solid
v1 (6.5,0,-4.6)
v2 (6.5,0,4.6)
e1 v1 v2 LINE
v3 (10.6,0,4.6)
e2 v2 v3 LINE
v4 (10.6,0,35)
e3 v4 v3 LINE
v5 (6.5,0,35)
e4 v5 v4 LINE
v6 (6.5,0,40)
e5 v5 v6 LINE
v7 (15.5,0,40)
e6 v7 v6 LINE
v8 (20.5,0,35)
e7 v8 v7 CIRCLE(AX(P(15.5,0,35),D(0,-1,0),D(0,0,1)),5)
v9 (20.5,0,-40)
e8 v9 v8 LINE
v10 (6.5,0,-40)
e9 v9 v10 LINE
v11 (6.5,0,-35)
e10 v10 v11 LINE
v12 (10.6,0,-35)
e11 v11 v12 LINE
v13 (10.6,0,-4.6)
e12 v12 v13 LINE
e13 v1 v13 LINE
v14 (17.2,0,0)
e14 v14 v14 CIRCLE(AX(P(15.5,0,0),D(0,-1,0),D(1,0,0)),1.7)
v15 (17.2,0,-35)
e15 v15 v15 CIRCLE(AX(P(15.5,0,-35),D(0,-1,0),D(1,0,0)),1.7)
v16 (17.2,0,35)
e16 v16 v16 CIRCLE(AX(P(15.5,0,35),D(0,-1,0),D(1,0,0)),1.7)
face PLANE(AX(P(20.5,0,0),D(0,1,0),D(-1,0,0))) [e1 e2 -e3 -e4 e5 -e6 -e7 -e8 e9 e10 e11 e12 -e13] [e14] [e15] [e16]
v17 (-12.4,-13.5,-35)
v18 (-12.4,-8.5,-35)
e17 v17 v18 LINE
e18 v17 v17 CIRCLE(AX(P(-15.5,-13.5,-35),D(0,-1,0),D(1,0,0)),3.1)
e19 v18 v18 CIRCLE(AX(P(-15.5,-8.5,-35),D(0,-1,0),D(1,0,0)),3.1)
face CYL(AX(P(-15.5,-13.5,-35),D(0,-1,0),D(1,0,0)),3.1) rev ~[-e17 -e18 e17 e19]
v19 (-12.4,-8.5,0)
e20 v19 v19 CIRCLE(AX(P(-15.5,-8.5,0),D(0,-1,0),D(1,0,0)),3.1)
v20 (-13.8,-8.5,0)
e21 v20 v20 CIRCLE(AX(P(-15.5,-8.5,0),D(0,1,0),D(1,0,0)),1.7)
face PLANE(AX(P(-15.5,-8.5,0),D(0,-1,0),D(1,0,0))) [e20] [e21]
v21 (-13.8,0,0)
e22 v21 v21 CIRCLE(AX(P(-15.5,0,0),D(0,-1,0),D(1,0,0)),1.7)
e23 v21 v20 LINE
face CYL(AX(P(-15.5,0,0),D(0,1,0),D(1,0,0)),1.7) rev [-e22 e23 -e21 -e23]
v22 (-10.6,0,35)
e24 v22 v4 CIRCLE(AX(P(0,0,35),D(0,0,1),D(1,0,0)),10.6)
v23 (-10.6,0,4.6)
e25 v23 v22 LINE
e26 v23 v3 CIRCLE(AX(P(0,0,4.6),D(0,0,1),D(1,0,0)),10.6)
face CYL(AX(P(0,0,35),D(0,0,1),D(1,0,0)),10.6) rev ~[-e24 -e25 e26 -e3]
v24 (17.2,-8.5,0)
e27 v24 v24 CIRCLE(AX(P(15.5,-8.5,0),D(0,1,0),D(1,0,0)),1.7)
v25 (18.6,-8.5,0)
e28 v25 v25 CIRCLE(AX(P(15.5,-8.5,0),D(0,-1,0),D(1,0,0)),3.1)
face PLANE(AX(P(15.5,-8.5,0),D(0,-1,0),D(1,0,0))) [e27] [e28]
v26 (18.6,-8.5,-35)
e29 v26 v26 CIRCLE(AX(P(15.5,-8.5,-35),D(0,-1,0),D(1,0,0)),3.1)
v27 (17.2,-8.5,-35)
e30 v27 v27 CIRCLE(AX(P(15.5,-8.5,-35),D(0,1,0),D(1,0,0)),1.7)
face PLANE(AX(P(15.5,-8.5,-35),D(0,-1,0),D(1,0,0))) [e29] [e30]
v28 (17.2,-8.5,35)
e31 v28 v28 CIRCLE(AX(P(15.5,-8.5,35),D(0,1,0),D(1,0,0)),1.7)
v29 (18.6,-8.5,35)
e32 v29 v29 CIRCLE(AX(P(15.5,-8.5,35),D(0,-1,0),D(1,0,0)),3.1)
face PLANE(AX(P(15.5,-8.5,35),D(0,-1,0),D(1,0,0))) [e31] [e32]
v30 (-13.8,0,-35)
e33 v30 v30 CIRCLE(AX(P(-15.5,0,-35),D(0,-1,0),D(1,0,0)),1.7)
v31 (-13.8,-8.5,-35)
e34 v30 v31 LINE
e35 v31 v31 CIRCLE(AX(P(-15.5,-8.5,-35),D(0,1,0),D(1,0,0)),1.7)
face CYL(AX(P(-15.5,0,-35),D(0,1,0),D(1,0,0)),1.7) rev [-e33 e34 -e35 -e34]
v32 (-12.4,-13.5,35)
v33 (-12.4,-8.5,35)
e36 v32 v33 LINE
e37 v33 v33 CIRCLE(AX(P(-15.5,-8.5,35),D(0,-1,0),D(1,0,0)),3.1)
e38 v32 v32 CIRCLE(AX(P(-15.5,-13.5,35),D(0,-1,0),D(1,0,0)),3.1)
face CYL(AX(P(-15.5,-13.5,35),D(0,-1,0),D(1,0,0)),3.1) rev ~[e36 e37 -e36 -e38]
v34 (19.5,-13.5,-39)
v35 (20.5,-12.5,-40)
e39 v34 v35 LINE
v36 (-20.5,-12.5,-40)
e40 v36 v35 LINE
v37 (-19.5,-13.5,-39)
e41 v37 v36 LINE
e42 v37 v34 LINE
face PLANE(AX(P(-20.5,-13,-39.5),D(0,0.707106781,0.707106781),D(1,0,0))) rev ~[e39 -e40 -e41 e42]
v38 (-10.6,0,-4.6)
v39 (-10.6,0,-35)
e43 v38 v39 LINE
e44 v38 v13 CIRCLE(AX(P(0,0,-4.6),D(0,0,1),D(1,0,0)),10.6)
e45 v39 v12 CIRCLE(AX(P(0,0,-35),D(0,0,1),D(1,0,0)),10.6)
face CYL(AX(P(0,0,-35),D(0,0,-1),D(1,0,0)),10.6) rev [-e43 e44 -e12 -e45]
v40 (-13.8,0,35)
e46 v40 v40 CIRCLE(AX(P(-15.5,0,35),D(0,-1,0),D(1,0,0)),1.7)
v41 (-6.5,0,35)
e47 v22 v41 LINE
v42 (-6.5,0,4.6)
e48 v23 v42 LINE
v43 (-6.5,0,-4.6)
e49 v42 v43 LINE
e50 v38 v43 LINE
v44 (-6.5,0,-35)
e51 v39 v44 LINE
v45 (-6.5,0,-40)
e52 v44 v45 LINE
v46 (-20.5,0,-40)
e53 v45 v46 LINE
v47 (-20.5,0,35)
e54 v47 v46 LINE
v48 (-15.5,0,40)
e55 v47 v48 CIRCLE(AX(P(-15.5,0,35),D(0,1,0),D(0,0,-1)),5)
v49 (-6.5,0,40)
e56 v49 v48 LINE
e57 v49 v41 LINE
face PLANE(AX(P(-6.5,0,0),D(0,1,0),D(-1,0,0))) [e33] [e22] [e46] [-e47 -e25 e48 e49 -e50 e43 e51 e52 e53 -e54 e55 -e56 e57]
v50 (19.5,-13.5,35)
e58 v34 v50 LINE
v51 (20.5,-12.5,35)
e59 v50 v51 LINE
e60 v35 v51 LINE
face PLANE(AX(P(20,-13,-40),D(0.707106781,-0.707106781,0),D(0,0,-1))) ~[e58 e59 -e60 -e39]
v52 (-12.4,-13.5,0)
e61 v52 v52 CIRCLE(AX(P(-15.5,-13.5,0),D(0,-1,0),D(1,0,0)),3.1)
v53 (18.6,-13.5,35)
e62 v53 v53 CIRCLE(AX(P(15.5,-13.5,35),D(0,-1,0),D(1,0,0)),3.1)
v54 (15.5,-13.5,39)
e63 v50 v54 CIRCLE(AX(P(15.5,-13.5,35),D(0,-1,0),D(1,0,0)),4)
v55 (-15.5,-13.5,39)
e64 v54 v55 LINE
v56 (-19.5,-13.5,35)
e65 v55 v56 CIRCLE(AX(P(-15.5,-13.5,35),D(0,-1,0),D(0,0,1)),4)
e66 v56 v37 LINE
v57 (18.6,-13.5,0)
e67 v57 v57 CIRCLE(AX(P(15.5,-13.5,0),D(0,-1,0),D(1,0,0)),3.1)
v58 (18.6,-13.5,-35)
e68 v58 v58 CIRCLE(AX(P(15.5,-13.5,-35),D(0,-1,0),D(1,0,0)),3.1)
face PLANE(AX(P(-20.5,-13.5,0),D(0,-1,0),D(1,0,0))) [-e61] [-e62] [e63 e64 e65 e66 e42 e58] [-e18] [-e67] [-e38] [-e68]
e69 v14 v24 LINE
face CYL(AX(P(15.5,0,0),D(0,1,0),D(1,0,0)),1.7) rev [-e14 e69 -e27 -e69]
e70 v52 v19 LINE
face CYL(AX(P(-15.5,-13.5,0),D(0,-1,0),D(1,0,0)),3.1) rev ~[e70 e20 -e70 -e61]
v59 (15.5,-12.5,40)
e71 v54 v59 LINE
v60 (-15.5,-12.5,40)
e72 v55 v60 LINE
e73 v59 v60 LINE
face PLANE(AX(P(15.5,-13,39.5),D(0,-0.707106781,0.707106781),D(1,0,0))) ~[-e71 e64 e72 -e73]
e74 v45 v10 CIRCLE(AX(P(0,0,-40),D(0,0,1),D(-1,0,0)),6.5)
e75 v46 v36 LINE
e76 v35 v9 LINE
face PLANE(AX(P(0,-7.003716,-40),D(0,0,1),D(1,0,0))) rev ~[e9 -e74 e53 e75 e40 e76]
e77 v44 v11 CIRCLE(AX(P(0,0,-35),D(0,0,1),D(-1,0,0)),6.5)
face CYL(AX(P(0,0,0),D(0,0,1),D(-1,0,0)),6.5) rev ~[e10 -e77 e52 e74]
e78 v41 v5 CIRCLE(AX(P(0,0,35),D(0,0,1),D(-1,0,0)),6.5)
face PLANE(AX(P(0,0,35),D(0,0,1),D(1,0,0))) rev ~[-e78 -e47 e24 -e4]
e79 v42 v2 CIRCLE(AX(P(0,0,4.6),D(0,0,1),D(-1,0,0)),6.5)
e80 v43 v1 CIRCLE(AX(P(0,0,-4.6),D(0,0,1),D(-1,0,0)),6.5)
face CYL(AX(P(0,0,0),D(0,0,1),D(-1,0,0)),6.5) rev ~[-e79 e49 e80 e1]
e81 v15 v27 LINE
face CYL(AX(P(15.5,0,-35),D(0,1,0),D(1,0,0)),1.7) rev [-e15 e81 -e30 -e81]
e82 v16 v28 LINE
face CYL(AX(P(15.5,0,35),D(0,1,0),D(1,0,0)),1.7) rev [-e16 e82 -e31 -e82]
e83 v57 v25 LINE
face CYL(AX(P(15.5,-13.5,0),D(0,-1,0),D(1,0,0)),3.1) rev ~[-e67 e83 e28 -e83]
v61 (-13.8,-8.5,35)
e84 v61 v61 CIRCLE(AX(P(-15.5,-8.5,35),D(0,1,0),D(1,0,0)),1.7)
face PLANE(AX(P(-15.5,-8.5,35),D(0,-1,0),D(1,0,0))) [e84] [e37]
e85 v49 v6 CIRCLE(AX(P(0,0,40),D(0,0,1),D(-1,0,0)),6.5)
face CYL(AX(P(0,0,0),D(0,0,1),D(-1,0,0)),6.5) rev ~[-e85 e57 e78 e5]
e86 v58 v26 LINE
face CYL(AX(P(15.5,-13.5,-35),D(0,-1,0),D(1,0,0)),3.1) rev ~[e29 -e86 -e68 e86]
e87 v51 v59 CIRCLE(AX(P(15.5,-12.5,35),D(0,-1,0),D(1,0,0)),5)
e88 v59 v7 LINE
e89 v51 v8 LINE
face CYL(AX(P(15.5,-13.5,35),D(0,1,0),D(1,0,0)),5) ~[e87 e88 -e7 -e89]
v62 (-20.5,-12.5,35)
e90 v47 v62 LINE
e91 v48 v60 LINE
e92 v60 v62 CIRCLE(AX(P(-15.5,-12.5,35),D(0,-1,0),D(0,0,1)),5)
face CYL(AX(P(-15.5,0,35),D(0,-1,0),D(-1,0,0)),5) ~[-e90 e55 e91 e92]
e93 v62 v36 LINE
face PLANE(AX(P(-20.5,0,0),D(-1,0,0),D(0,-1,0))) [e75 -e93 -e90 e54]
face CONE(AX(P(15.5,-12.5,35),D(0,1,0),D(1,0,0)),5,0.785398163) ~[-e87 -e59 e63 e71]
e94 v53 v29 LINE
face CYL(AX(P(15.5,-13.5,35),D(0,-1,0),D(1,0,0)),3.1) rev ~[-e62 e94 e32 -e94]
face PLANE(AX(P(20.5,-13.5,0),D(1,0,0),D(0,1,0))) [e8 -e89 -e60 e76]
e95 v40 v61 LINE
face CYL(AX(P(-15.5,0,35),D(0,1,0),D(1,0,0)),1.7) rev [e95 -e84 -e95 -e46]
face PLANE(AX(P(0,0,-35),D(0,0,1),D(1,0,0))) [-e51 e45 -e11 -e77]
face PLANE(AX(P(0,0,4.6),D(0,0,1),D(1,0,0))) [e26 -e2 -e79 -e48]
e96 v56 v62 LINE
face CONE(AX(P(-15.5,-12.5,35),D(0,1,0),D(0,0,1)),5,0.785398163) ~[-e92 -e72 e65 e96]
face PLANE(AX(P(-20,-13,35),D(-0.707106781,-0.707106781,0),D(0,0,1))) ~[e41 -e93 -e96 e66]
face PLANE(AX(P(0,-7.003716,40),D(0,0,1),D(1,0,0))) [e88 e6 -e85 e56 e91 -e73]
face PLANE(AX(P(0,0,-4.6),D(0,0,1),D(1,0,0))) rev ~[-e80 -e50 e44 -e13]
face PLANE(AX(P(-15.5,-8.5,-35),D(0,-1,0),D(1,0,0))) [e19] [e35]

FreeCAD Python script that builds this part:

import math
import FreeCAD as App
import Part
import Sketcher
Q = App.Units.Quantity


def edges_at(feature, points):
    """Names of the edges that pass closest to the given points."""
    edges = feature.Shape.Edges
    near = lambda p: min(range(len(edges)), key=lambda i: edges[i].distToShape(Part.Vertex(*p))[0])
    return sorted({f"Edge{near(p) + 1}" for p in points})

doc = App.newDocument("Part")
body = doc.addObject("PartDesign::Body", "Body")

sketch1 = body.newObject("Sketcher::SketchObject", "Sketch")
sketch1.AttachmentSupport = (doc.getObject("XY_Plane"), [""])
sketch1.MapMode = "FlatFace"
sketch1.addGeometry([
    Part.LineSegment(App.Vector(-20, -14, 0), App.Vector(20, -14, 0)),
    Part.LineSegment(App.Vector(20, -14, 0), App.Vector(20, 0, 0)),
    Part.LineSegment(App.Vector(20, 0, 0), App.Vector(6, 0, 0)),
    Part.ArcOfCircle(Part.Circle(App.Vector(0, 0, 0), App.Vector(0, 0, 1), 6), math.radians(180), math.radians(360)),
    Part.LineSegment(App.Vector(-6, 0, 0), App.Vector(-20, 0, 0)),
    Part.LineSegment(App.Vector(-20, 0, 0), App.Vector(-20, -14, 0)),
], False)
sketch1.addConstraint([
    Sketcher.Constraint("Coincident", 0, 2, 1, 1),
    Sketcher.Constraint("Coincident", 1, 2, 2, 1),
    Sketcher.Constraint("Coincident", 2, 2, 3, 2),
    Sketcher.Constraint("Coincident", 3, 1, 4, 1),
    Sketcher.Constraint("Coincident", 4, 2, 5, 1),
    Sketcher.Constraint("Coincident", 5, 2, 0, 1),
    Sketcher.Constraint("Horizontal", 0),
    Sketcher.Constraint("Vertical", 1),
    Sketcher.Constraint("Horizontal", 2),
    Sketcher.Constraint("Horizontal", 4),
    Sketcher.Constraint("Vertical", 5),
    Sketcher.Constraint("Coincident", 3, 3, -1, 1),
    Sketcher.Constraint("Symmetric", 1, 2, 4, 2, -1, 1),
    Sketcher.Constraint("PointOnObject", 1, 2, -1),
    Sketcher.Constraint("Radius", 3, Q("6.5 mm")),
    Sketcher.Constraint("DistanceX", 0, 1, 0, 2, Q("41 mm")),
    Sketcher.Constraint("DistanceY", 1, 1, 1, 2, Q("13.5 mm")),
])
pad1 = body.newObject("PartDesign::Pad", "Pad")
pad1.Profile = sketch1
pad1.Length = 80
pad1.Midplane = True

sketch2 = body.newObject("Sketcher::SketchObject", "Sketch001")
sketch2.AttachmentSupport = (doc.getObject("XZ_Plane"), [""])
sketch2.MapMode = "FlatFace"
sketch2.addGeometry([
    Part.Circle(App.Vector(-15.5, 35, 0), App.Vector(0, 0, 1), 1.7),
    Part.Circle(App.Vector(-15.5, 0, 0), App.Vector(0, 0, 1), 1.7),
    Part.Circle(App.Vector(-15.5, -35, 0), App.Vector(0, 0, 1), 1.7),
    Part.Circle(App.Vector(15.5, -35, 0), App.Vector(0, 0, 1), 1.7),
    Part.Circle(App.Vector(15.5, 0, 0), App.Vector(0, 0, 1), 1.7),
    Part.Circle(App.Vector(15.5, 35, 0), App.Vector(0, 0, 1), 1.7),
], False)
sketch2.addConstraint([
    Sketcher.Constraint("Equal", 0, 1),
    Sketcher.Constraint("Equal", 1, 2),
    Sketcher.Constraint("Equal", 2, 3),
    Sketcher.Constraint("Equal", 3, 4),
    Sketcher.Constraint("Equal", 4, 5),
    Sketcher.Constraint("Symmetric", 0, 3, 3, 3, -1, 1),
    Sketcher.Constraint("Symmetric", 1, 3, 4, 3, -1, 1),
    Sketcher.Constraint("Symmetric", 2, 3, 5, 3, -1, 1),
    Sketcher.Constraint("Symmetric", 2, 3, 3, 3, -2),
    Sketcher.Constraint("PointOnObject", 1, 3, -1),
    Sketcher.Constraint("Vertical", 0, 3, 1, 3),
    Sketcher.Constraint("Diameter", 0, Q("3.4 mm")),
    Sketcher.Constraint("DistanceY", -1, 1, 0, 3, Q("35 mm")),
    Sketcher.Constraint("DistanceX", 2, 3, 3, 3, Q("31 mm")),
])
pocket1 = body.newObject("PartDesign::Pocket", "Pocket")
pocket1.Profile = sketch2
pocket1.Type = "ThroughAll"
pocket1.Reversed = True

sketch3 = body.newObject("Sketcher::SketchObject", "Sketch002")
sketch3.AttachmentSupport = (doc.getObject("XY_Plane"), [""])
sketch3.MapMode = "FlatFace"
sketch3.AttachmentOffset = App.Placement(App.Vector(0, 0, 35), App.Rotation())
sketch3.addGeometry(Part.Circle(App.Vector(0, 0, 0), App.Vector(0, 0, 1), 11), False)
sketch3.addConstraint([
    Sketcher.Constraint("Coincident", 0, 3, -1, 1),
    Sketcher.Constraint("Diameter", 0, Q("21.2 mm")),
])
pocket2 = body.newObject("PartDesign::Pocket", "Pocket001")
pocket2.Profile = sketch3
pocket2.Length = 30.4

sketch4 = body.newObject("Sketcher::SketchObject", "Sketch003")
sketch4.AttachmentSupport = (doc.getObject("XY_Plane"), [""])
sketch4.MapMode = "FlatFace"
sketch4.AttachmentOffset = App.Placement(App.Vector(0, 0, -35), App.Rotation())
sketch4.addGeometry(Part.Circle(App.Vector(0, 0, 0), App.Vector(0, 0, 1), 11), False)
sketch4.addConstraint([
    Sketcher.Constraint("Coincident", 0, 3, -1, 1),
    Sketcher.Constraint("Diameter", 0, Q("21.2 mm")),
])
pocket3 = body.newObject("PartDesign::Pocket", "Pocket002")
pocket3.Profile = sketch4
pocket3.Length = 30.4
pocket3.Reversed = True
doc.recompute()

fillet = body.newObject("PartDesign::Fillet", "Fillet")
fillet.Base = (pocket3, edges_at(pocket3, [(-20.5, -6.75, 40), (20.5, -6.75, 40)]))
fillet.Radius = 5
doc.recompute()

chamfer = body.newObject("PartDesign::Chamfer", "Chamfer")
chamfer.Base = (fillet, edges_at(fillet, [(-20.5, -13.5, -2.5), (0, -13.5, -40)]))
chamfer.Size = 1

sketch5 = body.newObject("Sketcher::SketchObject", "Sketch004")
sketch5.AttachmentSupport = (doc.getObject("XZ_Plane"), [""])
sketch5.MapMode = "FlatFace"
sketch5.AttachmentOffset = App.Placement(App.Vector(0, 0, 13.5), App.Rotation())
sketch5.addGeometry([
    Part.Circle(App.Vector(-15.5, 35, 0), App.Vector(0, 0, 1), 3.1),
    Part.Circle(App.Vector(15.5, 35, 0), App.Vector(0, 0, 1), 3.1),
    Part.Circle(App.Vector(-15.5, -35, 0), App.Vector(0, 0, 1), 3.1),
    Part.Circle(App.Vector(-15.5, 0, 0), App.Vector(0, 0, 1), 3.1),
    Part.Circle(App.Vector(15.5, 0, 0), App.Vector(0, 0, 1), 3.1),
    Part.Circle(App.Vector(15.5, -35, 0), App.Vector(0, 0, 1), 3.1),
], False)
sketch5.addConstraint([
    Sketcher.Constraint("Equal", 0, 1),
    Sketcher.Constraint("Equal", 1, 2),
    Sketcher.Constraint("Equal", 2, 3),
    Sketcher.Constraint("Equal", 3, 4),
    Sketcher.Constraint("Equal", 4, 5),
    Sketcher.Constraint("Symmetric", 1, 3, 2, 3, -1, 1),
    Sketcher.Constraint("Symmetric", 3, 3, 4, 3, -1, 1),
    Sketcher.Constraint("Symmetric", 0, 3, 5, 3, -1, 1),
    Sketcher.Constraint("Symmetric", 0, 3, 1, 3, -2),
    Sketcher.Constraint("PointOnObject", 3, 3, -1),
    Sketcher.Constraint("Vertical", 2, 3, 3, 3),
    Sketcher.Constraint("Diameter", 0, Q("6.2 mm")),
    Sketcher.Constraint("DistanceY", -1, 1, 0, 3, Q("35 mm")),
    Sketcher.Constraint("DistanceX", 0, 3, 1, 3, Q("31 mm")),
])
pocket4 = body.newObject("PartDesign::Pocket", "Pocket003")
pocket4.Profile = sketch5
pocket4.Length = 5

doc.recompute()
